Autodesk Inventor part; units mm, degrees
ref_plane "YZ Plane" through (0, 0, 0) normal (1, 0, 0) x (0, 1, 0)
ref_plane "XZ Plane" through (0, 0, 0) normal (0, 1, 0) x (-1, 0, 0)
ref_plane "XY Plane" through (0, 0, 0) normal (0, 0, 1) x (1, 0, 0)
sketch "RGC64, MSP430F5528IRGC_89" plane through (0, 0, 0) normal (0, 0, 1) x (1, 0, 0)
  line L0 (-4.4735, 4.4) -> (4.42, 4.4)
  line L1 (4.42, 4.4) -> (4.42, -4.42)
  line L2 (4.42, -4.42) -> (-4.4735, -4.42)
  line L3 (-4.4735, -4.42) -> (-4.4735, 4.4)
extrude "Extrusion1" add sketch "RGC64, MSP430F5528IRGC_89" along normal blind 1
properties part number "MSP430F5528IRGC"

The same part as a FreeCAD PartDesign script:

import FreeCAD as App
import Part
import Sketcher


def add_polygon(sketch, points):
    """Adds a closed chain of lines whose ends are joined by coincident constraints."""
    first, n = sketch.GeometryCount, len(points)
    for a, b in zip(points, points[1:] + points[:1]):
        sketch.addGeometry(Part.LineSegment(App.Vector(*a, 0), App.Vector(*b, 0)), False)
    for i in range(n):
        sketch.addConstraint(Sketcher.Constraint("Coincident", first + i, 2, first + (i + 1) % n, 1))

doc = App.newDocument("Part")
body = doc.addObject("PartDesign::Body", "Body")

# Sketch on XY plane
sketch1 = doc.addObject("Sketcher::SketchObject", "Sketch")
body.addObject(sketch1)
sketch1.AttachmentSupport = (doc.XY_Plane, [""])
sketch1.MapMode = "FlatFace"
add_polygon(sketch1, [(4, 4), (-4, 4), (-4, -4), (4, -4)])  # lines 0-3
sketch1.addConstraint([
    Sketcher.Constraint("Horizontal", 0),
    Sketcher.Constraint("Vertical", 1),
    Sketcher.Constraint("Horizontal", 2),
    Sketcher.Constraint("Vertical", 3),
    Sketcher.Constraint("DistanceY", 1, 2, 1, 1, 8.82),
    Sketcher.Constraint("DistanceY", -1, 1, 0, 2, 4.4),
    Sketcher.Constraint("DistanceX", -1, 1, 2, 2, 4.42),
    Sketcher.Constraint("DistanceX", 0, 2, 0, 1, 8.8935),
])
pad1 = doc.addObject("PartDesign::Pad", "Pad")
body.addObject(pad1)
pad1.Profile = sketch1
pad1.Length = 1

doc.recompute()
